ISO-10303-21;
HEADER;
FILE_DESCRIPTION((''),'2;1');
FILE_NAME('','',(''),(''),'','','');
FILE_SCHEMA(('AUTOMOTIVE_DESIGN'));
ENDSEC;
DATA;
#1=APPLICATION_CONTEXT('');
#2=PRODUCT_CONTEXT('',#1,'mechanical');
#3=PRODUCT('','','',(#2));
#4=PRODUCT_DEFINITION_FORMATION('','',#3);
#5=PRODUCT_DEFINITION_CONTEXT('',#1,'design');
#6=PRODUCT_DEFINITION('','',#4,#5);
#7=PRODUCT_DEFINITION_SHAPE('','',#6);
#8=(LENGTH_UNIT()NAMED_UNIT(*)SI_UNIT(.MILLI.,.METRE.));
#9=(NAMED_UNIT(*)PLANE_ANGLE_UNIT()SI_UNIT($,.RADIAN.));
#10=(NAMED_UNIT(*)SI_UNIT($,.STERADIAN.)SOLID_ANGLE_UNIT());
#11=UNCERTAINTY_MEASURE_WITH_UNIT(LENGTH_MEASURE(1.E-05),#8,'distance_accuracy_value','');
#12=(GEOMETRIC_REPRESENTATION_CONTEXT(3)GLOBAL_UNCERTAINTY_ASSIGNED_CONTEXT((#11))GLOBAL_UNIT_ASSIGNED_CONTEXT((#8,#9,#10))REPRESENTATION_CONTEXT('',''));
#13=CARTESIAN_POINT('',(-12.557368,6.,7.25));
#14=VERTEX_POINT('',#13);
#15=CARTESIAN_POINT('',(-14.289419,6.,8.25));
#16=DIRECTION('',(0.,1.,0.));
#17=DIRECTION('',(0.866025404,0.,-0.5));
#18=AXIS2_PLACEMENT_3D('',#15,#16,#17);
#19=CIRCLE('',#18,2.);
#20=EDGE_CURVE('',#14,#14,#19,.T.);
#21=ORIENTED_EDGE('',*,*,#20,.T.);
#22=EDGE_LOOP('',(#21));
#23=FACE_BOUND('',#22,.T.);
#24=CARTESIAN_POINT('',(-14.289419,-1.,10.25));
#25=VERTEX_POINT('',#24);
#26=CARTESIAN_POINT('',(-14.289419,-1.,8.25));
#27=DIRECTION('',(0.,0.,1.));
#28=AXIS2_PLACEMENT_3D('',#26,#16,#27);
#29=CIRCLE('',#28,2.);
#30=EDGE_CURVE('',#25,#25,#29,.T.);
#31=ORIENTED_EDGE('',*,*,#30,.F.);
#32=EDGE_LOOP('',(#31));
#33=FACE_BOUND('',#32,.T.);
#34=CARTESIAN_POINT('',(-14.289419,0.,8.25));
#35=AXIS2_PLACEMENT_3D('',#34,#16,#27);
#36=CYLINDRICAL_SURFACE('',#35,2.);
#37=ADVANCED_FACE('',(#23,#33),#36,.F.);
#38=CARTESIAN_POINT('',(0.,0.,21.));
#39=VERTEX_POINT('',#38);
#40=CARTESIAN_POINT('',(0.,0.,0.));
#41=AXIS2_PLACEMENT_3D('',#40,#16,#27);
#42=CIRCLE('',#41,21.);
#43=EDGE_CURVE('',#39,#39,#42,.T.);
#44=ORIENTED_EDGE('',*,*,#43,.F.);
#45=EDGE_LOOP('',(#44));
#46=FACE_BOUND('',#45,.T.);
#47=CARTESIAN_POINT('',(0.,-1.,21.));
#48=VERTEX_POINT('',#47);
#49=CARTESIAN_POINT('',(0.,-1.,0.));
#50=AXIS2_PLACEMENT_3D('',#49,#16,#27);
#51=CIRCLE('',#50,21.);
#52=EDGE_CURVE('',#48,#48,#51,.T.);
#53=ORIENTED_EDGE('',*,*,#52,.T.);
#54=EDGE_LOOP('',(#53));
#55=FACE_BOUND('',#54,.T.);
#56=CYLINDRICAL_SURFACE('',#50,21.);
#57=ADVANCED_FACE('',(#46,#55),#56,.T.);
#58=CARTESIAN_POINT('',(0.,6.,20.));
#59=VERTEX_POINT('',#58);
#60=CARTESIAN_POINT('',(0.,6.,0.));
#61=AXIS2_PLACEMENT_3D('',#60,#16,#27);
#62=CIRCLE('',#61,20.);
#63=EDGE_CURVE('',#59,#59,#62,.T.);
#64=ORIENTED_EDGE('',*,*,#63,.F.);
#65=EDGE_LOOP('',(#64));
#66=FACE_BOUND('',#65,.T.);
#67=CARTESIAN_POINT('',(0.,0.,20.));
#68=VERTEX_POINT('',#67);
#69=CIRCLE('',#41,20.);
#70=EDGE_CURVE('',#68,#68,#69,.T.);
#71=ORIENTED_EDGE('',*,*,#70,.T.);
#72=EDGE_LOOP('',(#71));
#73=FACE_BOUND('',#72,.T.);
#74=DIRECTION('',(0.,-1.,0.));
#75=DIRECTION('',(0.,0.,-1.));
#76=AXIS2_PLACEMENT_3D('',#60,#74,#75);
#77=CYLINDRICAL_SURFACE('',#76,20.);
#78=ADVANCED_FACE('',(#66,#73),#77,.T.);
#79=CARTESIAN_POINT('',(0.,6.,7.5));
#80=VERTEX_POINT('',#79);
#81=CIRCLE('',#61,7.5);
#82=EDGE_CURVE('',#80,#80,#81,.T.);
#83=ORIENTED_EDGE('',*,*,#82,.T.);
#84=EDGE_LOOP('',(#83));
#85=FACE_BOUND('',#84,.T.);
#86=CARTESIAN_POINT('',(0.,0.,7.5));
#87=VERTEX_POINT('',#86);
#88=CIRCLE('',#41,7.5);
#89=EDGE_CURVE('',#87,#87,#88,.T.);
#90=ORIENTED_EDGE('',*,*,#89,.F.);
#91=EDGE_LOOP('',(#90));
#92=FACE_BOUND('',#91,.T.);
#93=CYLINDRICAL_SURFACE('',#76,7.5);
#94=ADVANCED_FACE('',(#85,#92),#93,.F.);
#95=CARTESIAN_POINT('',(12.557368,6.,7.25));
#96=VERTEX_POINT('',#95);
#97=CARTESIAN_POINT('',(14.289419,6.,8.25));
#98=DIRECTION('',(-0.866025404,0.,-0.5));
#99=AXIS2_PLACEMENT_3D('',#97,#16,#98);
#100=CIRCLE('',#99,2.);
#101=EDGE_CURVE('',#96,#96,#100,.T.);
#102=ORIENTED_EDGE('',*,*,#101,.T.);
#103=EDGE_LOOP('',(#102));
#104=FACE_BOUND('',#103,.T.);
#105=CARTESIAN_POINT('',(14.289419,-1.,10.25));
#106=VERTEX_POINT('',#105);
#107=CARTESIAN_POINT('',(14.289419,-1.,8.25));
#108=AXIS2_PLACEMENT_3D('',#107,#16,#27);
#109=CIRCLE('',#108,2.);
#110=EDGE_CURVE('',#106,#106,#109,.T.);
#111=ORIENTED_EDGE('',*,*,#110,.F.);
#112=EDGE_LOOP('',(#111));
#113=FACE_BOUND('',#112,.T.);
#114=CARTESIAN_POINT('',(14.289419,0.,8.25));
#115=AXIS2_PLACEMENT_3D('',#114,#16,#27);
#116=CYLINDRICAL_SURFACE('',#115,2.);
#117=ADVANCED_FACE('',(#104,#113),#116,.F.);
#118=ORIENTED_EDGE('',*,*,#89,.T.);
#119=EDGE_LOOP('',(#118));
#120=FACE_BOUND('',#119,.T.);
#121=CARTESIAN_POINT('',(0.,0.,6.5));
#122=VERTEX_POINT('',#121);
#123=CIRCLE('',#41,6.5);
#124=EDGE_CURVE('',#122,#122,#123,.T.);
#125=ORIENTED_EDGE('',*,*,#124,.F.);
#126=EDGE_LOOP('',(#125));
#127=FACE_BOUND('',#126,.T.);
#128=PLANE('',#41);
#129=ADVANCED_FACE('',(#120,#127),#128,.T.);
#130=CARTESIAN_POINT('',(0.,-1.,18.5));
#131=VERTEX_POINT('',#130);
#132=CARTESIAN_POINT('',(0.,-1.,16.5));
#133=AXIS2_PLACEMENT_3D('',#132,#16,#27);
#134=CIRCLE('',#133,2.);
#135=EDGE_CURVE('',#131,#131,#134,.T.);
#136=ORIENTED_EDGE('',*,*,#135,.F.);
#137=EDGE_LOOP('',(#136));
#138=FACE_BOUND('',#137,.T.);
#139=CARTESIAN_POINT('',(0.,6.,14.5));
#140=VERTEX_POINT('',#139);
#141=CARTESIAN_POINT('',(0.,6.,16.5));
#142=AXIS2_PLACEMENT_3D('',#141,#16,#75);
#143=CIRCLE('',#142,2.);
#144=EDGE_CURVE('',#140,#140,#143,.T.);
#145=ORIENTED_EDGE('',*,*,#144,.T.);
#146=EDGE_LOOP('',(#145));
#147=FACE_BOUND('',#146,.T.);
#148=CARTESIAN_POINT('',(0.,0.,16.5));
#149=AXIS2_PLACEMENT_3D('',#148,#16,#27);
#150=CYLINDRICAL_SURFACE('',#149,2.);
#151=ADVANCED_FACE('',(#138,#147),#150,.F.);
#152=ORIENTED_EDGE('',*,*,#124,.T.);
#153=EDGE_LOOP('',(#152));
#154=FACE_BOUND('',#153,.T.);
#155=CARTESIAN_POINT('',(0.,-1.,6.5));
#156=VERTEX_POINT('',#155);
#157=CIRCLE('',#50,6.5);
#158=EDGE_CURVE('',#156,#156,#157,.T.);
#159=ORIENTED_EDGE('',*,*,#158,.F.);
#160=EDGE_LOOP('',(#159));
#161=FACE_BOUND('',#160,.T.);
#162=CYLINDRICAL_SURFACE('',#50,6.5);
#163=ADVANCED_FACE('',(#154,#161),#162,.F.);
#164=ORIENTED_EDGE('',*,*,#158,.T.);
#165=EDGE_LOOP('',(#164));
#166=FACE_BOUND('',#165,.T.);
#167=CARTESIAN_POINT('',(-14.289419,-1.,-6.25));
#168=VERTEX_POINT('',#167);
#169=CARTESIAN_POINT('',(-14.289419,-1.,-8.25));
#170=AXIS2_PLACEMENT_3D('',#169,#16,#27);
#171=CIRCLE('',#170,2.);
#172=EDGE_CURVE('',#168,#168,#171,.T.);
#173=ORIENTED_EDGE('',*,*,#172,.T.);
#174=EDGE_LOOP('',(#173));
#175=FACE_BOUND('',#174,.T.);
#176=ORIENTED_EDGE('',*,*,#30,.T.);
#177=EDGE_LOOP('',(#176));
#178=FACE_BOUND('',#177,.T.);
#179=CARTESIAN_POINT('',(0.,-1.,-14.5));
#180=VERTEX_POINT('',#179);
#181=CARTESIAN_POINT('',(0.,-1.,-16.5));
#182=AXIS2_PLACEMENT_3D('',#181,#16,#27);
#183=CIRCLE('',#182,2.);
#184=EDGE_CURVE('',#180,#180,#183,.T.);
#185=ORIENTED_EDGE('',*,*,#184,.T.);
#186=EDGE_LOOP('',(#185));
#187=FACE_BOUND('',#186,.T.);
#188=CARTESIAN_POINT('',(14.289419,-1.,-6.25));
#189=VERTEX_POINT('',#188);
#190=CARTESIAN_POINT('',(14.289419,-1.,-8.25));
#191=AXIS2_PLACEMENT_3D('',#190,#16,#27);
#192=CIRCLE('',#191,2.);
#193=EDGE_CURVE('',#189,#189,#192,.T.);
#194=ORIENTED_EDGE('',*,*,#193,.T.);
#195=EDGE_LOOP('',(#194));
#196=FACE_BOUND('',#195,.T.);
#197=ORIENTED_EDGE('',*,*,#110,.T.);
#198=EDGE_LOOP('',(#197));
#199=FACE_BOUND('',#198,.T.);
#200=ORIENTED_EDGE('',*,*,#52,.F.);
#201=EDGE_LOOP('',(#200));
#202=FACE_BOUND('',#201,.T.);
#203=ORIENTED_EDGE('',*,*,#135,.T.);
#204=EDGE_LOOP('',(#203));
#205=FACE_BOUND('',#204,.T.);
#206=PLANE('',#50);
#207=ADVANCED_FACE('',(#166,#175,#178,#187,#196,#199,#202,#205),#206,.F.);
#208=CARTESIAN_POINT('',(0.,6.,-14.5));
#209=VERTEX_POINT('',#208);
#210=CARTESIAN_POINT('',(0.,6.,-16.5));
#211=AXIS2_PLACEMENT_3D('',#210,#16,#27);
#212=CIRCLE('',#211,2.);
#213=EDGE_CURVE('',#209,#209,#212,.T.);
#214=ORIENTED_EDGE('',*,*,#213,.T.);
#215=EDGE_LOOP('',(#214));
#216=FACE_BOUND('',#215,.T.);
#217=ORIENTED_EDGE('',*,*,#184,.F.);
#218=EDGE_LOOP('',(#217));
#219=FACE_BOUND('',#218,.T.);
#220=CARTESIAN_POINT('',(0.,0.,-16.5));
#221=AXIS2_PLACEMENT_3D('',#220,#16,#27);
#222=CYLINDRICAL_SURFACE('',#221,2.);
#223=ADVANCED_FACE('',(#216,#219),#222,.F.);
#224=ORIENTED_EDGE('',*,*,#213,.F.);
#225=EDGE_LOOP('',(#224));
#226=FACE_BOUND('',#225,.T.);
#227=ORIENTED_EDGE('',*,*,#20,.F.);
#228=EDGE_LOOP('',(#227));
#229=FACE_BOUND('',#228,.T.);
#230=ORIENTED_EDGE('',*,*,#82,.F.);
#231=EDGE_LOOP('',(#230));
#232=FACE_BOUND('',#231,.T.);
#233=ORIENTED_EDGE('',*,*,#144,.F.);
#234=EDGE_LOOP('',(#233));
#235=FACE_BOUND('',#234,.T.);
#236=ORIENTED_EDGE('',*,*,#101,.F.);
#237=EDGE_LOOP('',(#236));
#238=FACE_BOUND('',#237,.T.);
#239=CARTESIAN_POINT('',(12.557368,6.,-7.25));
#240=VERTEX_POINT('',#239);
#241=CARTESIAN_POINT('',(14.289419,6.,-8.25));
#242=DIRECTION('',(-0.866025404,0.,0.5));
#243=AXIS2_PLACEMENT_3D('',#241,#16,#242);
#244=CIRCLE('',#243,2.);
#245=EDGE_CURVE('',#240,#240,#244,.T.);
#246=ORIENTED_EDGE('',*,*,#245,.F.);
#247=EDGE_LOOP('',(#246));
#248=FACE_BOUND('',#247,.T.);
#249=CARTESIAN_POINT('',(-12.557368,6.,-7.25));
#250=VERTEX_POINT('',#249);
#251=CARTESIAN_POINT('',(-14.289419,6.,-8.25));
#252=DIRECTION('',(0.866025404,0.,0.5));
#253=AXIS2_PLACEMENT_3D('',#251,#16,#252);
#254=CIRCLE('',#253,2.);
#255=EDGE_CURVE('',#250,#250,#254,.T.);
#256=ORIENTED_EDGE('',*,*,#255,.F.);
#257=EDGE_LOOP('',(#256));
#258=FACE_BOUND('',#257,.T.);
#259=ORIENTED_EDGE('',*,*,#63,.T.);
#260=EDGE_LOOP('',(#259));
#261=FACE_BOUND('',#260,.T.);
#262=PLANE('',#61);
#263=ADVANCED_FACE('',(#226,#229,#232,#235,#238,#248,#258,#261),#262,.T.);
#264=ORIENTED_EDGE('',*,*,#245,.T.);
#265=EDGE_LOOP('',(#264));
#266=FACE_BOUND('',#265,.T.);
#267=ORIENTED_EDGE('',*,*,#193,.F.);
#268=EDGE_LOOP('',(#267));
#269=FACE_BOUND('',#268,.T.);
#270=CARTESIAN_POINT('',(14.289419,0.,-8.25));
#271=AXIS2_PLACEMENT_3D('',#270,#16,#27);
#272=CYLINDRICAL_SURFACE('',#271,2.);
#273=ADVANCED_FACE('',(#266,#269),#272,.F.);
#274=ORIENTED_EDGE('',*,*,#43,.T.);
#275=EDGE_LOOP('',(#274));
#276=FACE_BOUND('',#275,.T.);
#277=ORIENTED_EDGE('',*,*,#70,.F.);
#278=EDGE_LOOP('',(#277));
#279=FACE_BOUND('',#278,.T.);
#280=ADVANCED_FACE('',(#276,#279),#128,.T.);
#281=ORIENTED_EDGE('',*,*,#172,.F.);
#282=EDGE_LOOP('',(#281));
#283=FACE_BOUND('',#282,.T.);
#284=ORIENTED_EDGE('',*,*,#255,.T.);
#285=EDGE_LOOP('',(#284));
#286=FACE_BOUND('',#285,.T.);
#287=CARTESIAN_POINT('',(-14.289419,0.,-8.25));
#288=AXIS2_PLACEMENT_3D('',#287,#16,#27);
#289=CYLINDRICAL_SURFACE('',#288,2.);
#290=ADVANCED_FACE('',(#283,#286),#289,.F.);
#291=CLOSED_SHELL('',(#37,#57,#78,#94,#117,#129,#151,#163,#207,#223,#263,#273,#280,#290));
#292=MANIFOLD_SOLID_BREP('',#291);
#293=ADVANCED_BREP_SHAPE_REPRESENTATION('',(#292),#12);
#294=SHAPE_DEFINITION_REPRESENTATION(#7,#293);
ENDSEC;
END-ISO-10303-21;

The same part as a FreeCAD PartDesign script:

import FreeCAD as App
import Part
import Sketcher

doc = App.newDocument("Part")
params = doc.addObject("Spreadsheet::Sheet", "Params")
for row, (alias, value) in enumerate([
    ("sketch1_diameter", "40 mm"),
    ("sketch1_diameter2", "15 mm"),
    ("pad1_length", "6 mm"),
    ("sketch2_diameter", "4 mm"),
    ("sketch3_diameter", "42 mm"),
    ("sketch3_diameter2", "4 mm"),
    ("sketch3_diameter3", "13 mm"),
    ("pad2_length", "1 mm"),
], start=1):
    params.set(f"A{row}", alias)
    params.set(f"B{row}", "=" + value)
    params.setAlias(f"B{row}", alias)

body = doc.addObject("PartDesign::Body", "Body")

sketch1 = body.newObject("Sketcher::SketchObject", "Sketch")
sketch1.AttachmentSupport = (doc.getObject("XZ_Plane"), [""])
sketch1.MapMode = "FlatFace"
sketch1.addGeometry([
    Part.Circle(App.Vector(0, 0, 0), App.Vector(0, 0, 1), 20),
    Part.Circle(App.Vector(0, 0, 0), App.Vector(0, 0, 1), 8),
], False)
sketch1.addConstraint([
    Sketcher.Constraint("Coincident", 0, 3, -1, 1),
    Sketcher.Constraint("Coincident", 1, 3, -1, 1),
    Sketcher.Constraint("Diameter", 0, 40.0),
    Sketcher.Constraint("Diameter", 1, 15.0),
])
sketch1.setExpression("Constraints[2]", "Params.sketch1_diameter")
sketch1.setExpression("Constraints[3]", "Params.sketch1_diameter2")
pad1 = body.newObject("PartDesign::Pad", "Pad")
pad1.Profile = sketch1
pad1.setExpression("Length", "Params.pad1_length")
pad1.Reversed = True

sketch2 = body.newObject("Sketcher::SketchObject", "Sketch001")
sketch2.AttachmentSupport = (doc.getObject("XZ_Plane"), [""])
sketch2.MapMode = "FlatFace"
sketch2.AttachmentOffset = App.Placement(App.Vector(0, 0, -6), App.Rotation())
sketch2.addGeometry(Part.Circle(App.Vector(0, -16.5, 0), App.Vector(0, 0, 1), 2), False)
sketch2.addConstraint([
    Sketcher.Constraint("PointOnObject", 0, 3, -2),
    Sketcher.Constraint("Diameter", 0, 4.0),
    Sketcher.Constraint("DistanceY", 0, 3, -1, 1, 16.5),
])
sketch2.setExpression("Constraints[1]", "Params.sketch2_diameter")
pocket1 = body.newObject("PartDesign::Pocket", "Pocket")
pocket1.Profile = sketch2
pocket1.Type = "ThroughAll"
pocket1.Reversed = True
doc.recompute()

polarpattern = body.newObject("PartDesign::PolarPattern", "PolarPattern")
polarpattern.Originals = [pocket1]
polarpattern.Axis = (doc.getObject("Y_Axis"), [""])
polarpattern.Angle = 360
polarpattern.Occurrences = 6
body.Tip = polarpattern

sketch3 = body.newObject("Sketcher::SketchObject", "Sketch002")
sketch3.AttachmentSupport = (doc.getObject("XZ_Plane"), [""])
sketch3.MapMode = "FlatFace"
sketch3.addGeometry([
    Part.Circle(App.Vector(0, 0, 0), App.Vector(0, 0, 1), 21),
    Part.Circle(App.Vector(0, 16.5, 0), App.Vector(0, 0, 1), 2),
    Part.Circle(App.Vector(-14.3, 8.2, 0), App.Vector(0, 0, 1), 2),
    Part.Circle(App.Vector(14.3, 8.2, 0), App.Vector(0, 0, 1), 2),
    Part.Circle(App.Vector(-14.3, -8.2, 0), App.Vector(0, 0, 1), 2),
    Part.Circle(App.Vector(0, 0, 0), App.Vector(0, 0, 1), 6.5),
    Part.Circle(App.Vector(0, -16.5, 0), App.Vector(0, 0, 1), 2),
    Part.Circle(App.Vector(14.3, -8.2, 0), App.Vector(0, 0, 1), 2),
], False)
sketch3.addConstraint([
    Sketcher.Constraint("Coincident", 0, 3, -1, 1),
    Sketcher.Constraint("Coincident", 5, 3, -1, 1),
    Sketcher.Constraint("Equal", 1, 2),
    Sketcher.Constraint("Equal", 2, 3),
    Sketcher.Constraint("Equal", 3, 4),
    Sketcher.Constraint("Equal", 4, 6),
    Sketcher.Constraint("Equal", 6, 7),
    Sketcher.Constraint("Symmetric", 3, 3, 4, 3, -1, 1),
    Sketcher.Constraint("Symmetric", 1, 3, 6, 3, -1, 1),
    Sketcher.Constraint("Symmetric", 2, 3, 7, 3, -1, 1),
    Sketcher.Constraint("Symmetric", 2, 3, 3, 3, -2),
    Sketcher.Constraint("PointOnObject", 1, 3, -2),
    Sketcher.Constraint("Diameter", 0, 42.0),
    Sketcher.Constraint("Diameter", 1, 4.0),
    Sketcher.Constraint("Diameter", 5, 13.0),
    Sketcher.Constraint("DistanceY", -1, 1, 1, 3, 16.5),
    Sketcher.Constraint("DistanceY", 4, 3, 2, 3, 16.5),
    Sketcher.Constraint("DistanceX", 2, 3, -1, 1, 14.289419),
])
sketch3.setExpression("Constraints[12]", "Params.sketch3_diameter")
sketch3.setExpression("Constraints[13]", "Params.sketch3_diameter2")
sketch3.setExpression("Constraints[14]", "Params.sketch3_diameter3")
pad2 = body.newObject("PartDesign::Pad", "Pad001")
pad2.Profile = sketch3
pad2.setExpression("Length", "Params.pad2_length")

doc.recompute()
